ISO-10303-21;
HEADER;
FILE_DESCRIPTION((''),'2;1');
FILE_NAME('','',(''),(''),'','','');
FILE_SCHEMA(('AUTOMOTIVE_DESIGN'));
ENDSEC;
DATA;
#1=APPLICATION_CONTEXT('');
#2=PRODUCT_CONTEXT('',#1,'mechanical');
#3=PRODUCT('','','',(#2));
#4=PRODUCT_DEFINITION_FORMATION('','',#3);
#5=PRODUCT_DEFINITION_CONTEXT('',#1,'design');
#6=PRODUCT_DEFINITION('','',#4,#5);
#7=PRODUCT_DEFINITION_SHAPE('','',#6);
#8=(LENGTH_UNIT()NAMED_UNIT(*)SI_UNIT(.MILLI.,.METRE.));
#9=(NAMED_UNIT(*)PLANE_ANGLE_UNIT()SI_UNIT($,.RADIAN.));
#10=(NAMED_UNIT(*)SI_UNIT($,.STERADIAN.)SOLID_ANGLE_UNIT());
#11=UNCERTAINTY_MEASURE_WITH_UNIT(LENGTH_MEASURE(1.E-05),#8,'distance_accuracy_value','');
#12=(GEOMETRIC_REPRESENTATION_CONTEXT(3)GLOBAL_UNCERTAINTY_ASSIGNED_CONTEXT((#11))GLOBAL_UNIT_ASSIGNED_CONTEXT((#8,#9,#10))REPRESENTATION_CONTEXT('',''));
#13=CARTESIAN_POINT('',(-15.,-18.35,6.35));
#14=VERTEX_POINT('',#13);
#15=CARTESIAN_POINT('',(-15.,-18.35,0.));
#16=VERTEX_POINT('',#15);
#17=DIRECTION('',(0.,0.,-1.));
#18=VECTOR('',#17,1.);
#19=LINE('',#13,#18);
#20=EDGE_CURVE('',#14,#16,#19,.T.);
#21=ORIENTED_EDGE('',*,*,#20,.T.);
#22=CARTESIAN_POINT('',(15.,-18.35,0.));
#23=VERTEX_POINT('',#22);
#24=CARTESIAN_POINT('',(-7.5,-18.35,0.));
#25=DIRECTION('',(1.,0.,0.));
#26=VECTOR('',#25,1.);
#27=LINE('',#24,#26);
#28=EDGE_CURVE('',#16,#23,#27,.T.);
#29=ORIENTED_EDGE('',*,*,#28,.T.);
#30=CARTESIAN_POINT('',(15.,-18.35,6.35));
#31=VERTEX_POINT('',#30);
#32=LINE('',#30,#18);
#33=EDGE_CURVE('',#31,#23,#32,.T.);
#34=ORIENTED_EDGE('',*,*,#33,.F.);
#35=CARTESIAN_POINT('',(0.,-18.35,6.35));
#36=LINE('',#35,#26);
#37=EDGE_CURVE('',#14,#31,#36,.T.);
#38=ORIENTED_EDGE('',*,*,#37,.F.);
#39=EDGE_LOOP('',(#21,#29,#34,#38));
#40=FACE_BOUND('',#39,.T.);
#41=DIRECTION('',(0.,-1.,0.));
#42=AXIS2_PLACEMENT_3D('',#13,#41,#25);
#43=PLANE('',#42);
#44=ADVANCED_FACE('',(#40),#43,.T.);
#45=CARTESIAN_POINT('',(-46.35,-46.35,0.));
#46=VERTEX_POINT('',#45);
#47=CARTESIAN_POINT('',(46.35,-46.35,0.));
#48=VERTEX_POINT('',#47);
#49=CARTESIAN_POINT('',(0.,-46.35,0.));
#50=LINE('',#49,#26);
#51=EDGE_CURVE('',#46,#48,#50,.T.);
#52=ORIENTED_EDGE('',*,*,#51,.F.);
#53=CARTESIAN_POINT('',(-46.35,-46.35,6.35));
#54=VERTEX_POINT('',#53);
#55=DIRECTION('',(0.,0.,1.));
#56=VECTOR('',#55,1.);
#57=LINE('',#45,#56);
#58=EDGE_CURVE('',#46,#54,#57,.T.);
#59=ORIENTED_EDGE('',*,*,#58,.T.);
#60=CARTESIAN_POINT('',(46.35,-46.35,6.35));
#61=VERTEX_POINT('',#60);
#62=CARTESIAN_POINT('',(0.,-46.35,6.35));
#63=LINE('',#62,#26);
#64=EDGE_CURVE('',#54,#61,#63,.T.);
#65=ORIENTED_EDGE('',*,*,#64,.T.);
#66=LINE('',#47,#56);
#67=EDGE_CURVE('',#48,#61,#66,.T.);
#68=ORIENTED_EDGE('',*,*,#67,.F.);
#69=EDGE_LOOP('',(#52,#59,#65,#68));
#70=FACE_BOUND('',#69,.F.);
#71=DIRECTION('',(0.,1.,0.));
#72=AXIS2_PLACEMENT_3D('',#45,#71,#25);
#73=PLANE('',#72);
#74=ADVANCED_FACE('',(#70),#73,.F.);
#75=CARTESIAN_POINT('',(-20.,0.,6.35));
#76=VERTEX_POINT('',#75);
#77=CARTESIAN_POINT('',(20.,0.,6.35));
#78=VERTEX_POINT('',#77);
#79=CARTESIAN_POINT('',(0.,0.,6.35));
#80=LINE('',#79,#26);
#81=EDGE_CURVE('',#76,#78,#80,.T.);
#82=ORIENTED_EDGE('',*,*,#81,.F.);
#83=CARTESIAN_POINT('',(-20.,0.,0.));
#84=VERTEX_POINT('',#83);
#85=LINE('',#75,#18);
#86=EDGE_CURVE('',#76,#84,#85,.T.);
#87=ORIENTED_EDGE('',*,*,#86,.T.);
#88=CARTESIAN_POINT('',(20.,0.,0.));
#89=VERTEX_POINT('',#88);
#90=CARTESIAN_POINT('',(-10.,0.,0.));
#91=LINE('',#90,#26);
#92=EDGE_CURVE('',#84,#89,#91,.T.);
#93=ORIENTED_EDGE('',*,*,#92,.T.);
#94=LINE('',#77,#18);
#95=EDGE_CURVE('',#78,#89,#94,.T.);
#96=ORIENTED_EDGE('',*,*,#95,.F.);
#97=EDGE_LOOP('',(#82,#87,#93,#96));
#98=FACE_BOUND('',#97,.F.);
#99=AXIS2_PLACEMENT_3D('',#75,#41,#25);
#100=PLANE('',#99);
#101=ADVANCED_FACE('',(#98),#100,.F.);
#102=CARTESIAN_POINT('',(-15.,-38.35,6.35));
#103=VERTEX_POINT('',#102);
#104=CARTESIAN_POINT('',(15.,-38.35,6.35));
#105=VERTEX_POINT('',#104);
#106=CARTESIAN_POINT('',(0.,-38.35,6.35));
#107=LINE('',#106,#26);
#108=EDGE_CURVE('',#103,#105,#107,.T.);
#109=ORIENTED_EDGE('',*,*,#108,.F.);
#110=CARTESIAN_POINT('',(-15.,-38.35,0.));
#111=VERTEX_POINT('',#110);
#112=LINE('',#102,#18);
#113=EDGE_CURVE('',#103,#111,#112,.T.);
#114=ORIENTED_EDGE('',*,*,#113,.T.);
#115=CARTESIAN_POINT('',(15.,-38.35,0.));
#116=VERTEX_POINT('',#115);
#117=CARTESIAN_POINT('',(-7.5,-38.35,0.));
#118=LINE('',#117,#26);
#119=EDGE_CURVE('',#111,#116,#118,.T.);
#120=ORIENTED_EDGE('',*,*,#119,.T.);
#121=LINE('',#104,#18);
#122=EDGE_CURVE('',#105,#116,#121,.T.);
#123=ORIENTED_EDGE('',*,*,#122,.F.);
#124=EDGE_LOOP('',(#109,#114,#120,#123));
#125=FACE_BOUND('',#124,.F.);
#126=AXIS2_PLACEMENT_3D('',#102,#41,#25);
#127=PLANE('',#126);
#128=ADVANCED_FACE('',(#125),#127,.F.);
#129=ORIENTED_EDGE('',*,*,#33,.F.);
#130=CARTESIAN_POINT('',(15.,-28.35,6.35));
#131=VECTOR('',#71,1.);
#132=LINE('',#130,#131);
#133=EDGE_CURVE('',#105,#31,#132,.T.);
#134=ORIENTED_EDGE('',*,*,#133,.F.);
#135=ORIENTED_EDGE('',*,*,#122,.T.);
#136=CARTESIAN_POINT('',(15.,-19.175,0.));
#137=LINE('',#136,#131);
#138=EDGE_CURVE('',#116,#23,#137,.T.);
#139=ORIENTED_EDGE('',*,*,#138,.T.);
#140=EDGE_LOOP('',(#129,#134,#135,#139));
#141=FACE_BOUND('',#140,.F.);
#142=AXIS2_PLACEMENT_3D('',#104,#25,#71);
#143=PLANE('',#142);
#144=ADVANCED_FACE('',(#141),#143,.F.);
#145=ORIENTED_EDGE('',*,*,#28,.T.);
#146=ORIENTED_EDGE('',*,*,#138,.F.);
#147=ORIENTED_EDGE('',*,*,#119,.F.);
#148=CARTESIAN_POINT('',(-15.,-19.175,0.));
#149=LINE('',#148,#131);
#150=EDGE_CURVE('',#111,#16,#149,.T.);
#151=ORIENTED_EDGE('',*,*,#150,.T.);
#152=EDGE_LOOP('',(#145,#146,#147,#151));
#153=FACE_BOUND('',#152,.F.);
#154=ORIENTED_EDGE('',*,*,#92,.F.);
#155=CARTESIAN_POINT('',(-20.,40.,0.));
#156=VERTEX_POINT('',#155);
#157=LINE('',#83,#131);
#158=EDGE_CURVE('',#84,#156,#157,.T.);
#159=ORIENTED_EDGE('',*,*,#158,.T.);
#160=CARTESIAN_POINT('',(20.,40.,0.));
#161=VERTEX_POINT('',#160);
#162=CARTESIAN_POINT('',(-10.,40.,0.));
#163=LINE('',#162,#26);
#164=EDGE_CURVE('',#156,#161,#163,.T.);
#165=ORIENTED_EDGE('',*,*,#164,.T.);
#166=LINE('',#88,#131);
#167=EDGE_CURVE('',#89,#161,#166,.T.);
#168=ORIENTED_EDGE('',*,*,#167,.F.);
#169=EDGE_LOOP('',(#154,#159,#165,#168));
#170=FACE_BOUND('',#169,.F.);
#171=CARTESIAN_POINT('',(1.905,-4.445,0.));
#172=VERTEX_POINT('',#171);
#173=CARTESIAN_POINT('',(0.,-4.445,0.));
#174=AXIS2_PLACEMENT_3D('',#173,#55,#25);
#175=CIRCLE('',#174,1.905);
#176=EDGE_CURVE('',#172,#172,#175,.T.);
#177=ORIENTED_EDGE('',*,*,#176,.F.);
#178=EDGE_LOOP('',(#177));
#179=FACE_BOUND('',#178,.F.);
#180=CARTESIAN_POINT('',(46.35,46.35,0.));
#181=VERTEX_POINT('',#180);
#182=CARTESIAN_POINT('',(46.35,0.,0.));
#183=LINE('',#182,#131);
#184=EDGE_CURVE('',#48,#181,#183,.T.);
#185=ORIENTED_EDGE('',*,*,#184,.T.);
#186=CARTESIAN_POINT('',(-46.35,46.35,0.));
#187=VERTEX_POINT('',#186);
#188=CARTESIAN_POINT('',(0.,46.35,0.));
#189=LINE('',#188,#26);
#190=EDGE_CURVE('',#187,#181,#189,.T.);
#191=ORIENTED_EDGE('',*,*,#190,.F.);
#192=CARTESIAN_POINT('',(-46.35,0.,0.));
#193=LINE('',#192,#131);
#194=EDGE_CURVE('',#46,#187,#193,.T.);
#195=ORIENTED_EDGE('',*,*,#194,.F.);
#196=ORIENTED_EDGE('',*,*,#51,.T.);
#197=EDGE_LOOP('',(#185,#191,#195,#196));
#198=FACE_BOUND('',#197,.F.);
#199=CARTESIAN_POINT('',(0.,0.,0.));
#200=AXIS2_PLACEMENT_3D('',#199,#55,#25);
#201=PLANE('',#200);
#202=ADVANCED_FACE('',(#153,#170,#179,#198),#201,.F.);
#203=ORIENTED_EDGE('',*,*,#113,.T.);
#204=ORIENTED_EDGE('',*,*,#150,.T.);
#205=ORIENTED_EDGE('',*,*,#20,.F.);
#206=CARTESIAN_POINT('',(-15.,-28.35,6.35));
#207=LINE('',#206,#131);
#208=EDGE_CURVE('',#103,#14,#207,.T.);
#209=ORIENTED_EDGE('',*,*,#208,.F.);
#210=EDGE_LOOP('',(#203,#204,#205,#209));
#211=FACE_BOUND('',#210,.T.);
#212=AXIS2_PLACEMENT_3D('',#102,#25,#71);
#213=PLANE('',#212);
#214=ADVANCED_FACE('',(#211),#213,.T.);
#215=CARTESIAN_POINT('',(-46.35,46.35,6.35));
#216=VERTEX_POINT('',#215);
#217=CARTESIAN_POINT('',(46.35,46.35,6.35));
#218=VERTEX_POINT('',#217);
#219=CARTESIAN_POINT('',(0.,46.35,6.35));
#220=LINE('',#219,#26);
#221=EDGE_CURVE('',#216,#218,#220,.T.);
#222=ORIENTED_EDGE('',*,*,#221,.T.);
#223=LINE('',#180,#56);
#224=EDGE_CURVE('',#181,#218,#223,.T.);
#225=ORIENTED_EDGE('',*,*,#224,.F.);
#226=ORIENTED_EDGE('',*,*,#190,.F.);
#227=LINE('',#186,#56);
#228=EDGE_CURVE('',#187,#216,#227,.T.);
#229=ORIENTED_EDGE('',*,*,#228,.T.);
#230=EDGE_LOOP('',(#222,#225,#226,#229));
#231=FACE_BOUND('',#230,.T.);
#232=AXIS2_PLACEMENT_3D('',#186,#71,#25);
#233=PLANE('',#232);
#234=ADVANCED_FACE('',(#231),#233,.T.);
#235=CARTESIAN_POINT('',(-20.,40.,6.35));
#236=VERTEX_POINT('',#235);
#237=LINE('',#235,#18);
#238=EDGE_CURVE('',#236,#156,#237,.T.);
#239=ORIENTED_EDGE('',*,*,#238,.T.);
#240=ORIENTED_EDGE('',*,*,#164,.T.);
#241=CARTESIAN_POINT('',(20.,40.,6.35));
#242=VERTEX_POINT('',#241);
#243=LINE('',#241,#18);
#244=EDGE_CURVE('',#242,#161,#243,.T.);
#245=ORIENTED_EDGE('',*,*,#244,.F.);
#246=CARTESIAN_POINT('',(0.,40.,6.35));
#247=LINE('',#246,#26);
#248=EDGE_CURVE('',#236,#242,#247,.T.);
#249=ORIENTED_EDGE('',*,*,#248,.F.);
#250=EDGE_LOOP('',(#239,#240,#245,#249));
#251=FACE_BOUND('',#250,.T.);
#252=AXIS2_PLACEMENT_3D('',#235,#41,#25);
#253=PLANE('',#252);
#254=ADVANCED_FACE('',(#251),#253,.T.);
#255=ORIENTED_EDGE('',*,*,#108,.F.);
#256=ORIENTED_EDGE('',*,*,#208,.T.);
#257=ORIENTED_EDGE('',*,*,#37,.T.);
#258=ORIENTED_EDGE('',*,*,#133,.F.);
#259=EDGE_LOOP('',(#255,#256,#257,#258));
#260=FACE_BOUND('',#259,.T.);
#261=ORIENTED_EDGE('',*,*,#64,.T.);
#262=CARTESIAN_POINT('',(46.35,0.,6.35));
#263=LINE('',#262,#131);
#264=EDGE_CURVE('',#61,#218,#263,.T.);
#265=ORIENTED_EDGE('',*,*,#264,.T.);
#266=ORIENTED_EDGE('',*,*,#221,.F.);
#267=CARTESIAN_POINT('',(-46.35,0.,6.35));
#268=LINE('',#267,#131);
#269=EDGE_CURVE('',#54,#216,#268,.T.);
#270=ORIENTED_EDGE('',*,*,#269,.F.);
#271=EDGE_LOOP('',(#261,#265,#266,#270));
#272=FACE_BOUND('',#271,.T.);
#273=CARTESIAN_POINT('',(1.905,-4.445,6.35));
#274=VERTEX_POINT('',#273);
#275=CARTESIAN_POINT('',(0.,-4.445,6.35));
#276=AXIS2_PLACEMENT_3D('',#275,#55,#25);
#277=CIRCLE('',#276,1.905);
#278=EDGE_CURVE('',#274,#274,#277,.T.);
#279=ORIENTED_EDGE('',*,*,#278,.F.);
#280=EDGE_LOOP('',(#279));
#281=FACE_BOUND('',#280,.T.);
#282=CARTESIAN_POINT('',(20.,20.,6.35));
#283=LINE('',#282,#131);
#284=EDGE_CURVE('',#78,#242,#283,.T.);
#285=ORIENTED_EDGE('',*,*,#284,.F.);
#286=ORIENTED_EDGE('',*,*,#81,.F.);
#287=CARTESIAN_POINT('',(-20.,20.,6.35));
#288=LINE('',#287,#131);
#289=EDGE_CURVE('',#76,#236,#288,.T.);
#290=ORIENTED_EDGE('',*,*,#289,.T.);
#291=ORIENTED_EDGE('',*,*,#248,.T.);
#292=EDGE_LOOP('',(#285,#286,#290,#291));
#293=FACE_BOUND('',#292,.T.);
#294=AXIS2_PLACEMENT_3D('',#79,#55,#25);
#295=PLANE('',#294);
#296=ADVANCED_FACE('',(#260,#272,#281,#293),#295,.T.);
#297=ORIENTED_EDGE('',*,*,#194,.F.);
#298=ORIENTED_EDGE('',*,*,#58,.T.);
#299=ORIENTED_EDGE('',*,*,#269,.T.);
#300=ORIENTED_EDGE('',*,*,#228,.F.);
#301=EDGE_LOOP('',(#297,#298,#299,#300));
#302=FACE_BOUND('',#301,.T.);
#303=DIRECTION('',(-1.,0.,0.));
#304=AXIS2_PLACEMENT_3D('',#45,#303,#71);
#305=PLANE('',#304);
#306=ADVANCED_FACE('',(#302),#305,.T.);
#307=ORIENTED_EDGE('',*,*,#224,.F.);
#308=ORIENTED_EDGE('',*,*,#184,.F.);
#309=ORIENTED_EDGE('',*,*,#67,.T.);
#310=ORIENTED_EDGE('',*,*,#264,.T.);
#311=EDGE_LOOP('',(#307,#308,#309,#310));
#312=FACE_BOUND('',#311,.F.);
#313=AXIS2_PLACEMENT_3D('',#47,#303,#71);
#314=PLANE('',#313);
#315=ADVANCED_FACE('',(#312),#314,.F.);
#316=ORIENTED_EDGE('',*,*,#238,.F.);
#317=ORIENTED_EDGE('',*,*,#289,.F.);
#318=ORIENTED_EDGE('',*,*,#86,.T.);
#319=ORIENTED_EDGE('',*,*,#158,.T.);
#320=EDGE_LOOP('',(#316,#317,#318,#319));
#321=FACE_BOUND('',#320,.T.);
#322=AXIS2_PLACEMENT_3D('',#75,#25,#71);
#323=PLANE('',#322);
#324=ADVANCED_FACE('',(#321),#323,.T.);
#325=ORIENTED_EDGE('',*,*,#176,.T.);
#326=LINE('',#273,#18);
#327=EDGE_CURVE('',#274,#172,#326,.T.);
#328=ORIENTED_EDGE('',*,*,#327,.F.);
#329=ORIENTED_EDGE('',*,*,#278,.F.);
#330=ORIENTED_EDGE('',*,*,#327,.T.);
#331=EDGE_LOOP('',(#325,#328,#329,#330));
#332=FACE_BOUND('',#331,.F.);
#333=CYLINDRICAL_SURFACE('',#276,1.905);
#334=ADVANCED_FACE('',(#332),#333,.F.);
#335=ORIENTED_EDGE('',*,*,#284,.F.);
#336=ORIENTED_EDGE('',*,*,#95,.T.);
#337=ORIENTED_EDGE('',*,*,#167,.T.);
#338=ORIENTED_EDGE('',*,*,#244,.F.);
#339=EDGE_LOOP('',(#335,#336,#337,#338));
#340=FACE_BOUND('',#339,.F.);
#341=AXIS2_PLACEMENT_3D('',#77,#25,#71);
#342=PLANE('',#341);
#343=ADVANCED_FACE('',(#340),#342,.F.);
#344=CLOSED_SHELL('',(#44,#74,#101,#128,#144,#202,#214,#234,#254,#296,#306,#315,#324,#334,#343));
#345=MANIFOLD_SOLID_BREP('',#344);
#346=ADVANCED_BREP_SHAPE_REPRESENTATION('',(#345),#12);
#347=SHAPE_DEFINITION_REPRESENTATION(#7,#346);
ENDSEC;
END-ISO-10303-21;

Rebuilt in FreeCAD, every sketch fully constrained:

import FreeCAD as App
import Part
import Sketcher
Q = App.Units.Quantity

doc = App.newDocument("Part")
body = doc.addObject("PartDesign::Body", "Body")

# Sketch on XY plane
sketch1 = doc.addObject("Sketcher::SketchObject", "Sketch")
body.addObject(sketch1)
sketch1.AttachmentSupport = (doc.XY_Plane, [""])
sketch1.MapMode = "FlatFace"
sketch1.addGeometry([
    Part.LineSegment(App.Vector(-46, 46, 0), App.Vector(-46, -46, 0)),
    Part.LineSegment(App.Vector(-46, -46, 0), App.Vector(46, -46, 0)),
    Part.LineSegment(App.Vector(46, -46, 0), App.Vector(46, 46, 0)),
    Part.LineSegment(App.Vector(46, 46, 0), App.Vector(-46, 46, 0)),
], False)
sketch1.addConstraint([
    Sketcher.Constraint("Coincident", 0, 2, 1, 1),
    Sketcher.Constraint("Coincident", 1, 2, 2, 1),
    Sketcher.Constraint("Coincident", 2, 2, 3, 1),
    Sketcher.Constraint("Coincident", 3, 2, 0, 1),
    Sketcher.Constraint("Vertical", 0),
    Sketcher.Constraint("Horizontal", 1),
    Sketcher.Constraint("Vertical", 2),
    Sketcher.Constraint("Horizontal", 3),
    Sketcher.Constraint("Symmetric", 0, 2, 2, 2, -1, 1),
    Sketcher.Constraint("Equal", 3, 0),
    Sketcher.Constraint("DistanceX", 1, 1, 1, 2, Q("92.7 mm")),
])
pad1 = doc.addObject("PartDesign::Pad", "Pad")
body.addObject(pad1)
pad1.Profile = sketch1
pad1.Length = 6.35

# Sketch on XY plane
sketch2 = doc.addObject("Sketcher::SketchObject", "Sketch001")
body.addObject(sketch2)
sketch2.AttachmentSupport = (doc.XY_Plane, [""])
sketch2.MapMode = "FlatFace"
sketch2.AttachmentOffset = App.Placement(App.Vector(0, 0, 6.35), App.Rotation())
sketch2.addGeometry([
    Part.LineSegment(App.Vector(-15, -18.4, 0), App.Vector(-15, -38.4, 0)),  # 0
    Part.LineSegment(App.Vector(-15, -38.4, 0), App.Vector(15, -38.4, 0)),  # 1
    Part.LineSegment(App.Vector(15, -38.4, 0), App.Vector(15, -18.4, 0)),  # 2
    Part.LineSegment(App.Vector(15, -18.4, 0), App.Vector(-15, -18.4, 0)),  # 3
    Part.LineSegment(App.Vector(-20, 40, 0), App.Vector(-20, 0, 0)),  # 4
    Part.LineSegment(App.Vector(-20, 0, 0), App.Vector(20, 0, 0)),  # 5
    Part.LineSegment(App.Vector(20, 0, 0), App.Vector(20, 40, 0)),  # 6
    Part.LineSegment(App.Vector(20, 40, 0), App.Vector(-20, 40, 0)),  # 7
    Part.Circle(App.Vector(0, -4.4, 0), App.Vector(0, 0, 1), 1.9),  # 8
], False)
sketch2.addConstraint([
    Sketcher.Constraint("Coincident", 0, 2, 1, 1),
    Sketcher.Constraint("Coincident", 1, 2, 2, 1),
    Sketcher.Constraint("Coincident", 2, 2, 3, 1),
    Sketcher.Constraint("Coincident", 3, 2, 0, 1),
    Sketcher.Constraint("Coincident", 4, 2, 5, 1),
    Sketcher.Constraint("Coincident", 5, 2, 6, 1),
    Sketcher.Constraint("Coincident", 6, 2, 7, 1),
    Sketcher.Constraint("Coincident", 7, 2, 4, 1),
    Sketcher.Constraint("Vertical", 0),
    Sketcher.Constraint("Horizontal", 1),
    Sketcher.Constraint("Vertical", 2),
    Sketcher.Constraint("Horizontal", 3),
    Sketcher.Constraint("Vertical", 4),
    Sketcher.Constraint("Horizontal", 5),
    Sketcher.Constraint("Vertical", 6),
    Sketcher.Constraint("Horizontal", 7),
    Sketcher.Constraint("Symmetric", 4, 2, 5, 2, -1, 1),
    Sketcher.Constraint("PointOnObject", 8, 3, -2),
    Sketcher.Constraint("Equal", 7, 4),
    Sketcher.Constraint("Diameter", 8, Q("3.81 mm")),
    Sketcher.Constraint("DistanceX", 1, 1, 1, 2, Q("30 mm")),
    Sketcher.Constraint("DistanceX", 5, 1, 5, 2, Q("40 mm")),
    Sketcher.Constraint("DistanceY", 0, 2, 0, 1, Q("20 mm")),
    Sketcher.Constraint("DistanceX", 0, 2, -1, 1, Q("15 mm")),
    Sketcher.Constraint("DistanceY", 0, 2, -1, 1, Q("38.35 mm")),
    Sketcher.Constraint("DistanceY", 8, 3, -1, 1, Q("4.445 mm")),
])
pocket1 = doc.addObject("PartDesign::Pocket", "Pocket")
body.addObject(pocket1)
pocket1.Profile = sketch2
pocket1.Type = "ThroughAll"

doc.recompute()
